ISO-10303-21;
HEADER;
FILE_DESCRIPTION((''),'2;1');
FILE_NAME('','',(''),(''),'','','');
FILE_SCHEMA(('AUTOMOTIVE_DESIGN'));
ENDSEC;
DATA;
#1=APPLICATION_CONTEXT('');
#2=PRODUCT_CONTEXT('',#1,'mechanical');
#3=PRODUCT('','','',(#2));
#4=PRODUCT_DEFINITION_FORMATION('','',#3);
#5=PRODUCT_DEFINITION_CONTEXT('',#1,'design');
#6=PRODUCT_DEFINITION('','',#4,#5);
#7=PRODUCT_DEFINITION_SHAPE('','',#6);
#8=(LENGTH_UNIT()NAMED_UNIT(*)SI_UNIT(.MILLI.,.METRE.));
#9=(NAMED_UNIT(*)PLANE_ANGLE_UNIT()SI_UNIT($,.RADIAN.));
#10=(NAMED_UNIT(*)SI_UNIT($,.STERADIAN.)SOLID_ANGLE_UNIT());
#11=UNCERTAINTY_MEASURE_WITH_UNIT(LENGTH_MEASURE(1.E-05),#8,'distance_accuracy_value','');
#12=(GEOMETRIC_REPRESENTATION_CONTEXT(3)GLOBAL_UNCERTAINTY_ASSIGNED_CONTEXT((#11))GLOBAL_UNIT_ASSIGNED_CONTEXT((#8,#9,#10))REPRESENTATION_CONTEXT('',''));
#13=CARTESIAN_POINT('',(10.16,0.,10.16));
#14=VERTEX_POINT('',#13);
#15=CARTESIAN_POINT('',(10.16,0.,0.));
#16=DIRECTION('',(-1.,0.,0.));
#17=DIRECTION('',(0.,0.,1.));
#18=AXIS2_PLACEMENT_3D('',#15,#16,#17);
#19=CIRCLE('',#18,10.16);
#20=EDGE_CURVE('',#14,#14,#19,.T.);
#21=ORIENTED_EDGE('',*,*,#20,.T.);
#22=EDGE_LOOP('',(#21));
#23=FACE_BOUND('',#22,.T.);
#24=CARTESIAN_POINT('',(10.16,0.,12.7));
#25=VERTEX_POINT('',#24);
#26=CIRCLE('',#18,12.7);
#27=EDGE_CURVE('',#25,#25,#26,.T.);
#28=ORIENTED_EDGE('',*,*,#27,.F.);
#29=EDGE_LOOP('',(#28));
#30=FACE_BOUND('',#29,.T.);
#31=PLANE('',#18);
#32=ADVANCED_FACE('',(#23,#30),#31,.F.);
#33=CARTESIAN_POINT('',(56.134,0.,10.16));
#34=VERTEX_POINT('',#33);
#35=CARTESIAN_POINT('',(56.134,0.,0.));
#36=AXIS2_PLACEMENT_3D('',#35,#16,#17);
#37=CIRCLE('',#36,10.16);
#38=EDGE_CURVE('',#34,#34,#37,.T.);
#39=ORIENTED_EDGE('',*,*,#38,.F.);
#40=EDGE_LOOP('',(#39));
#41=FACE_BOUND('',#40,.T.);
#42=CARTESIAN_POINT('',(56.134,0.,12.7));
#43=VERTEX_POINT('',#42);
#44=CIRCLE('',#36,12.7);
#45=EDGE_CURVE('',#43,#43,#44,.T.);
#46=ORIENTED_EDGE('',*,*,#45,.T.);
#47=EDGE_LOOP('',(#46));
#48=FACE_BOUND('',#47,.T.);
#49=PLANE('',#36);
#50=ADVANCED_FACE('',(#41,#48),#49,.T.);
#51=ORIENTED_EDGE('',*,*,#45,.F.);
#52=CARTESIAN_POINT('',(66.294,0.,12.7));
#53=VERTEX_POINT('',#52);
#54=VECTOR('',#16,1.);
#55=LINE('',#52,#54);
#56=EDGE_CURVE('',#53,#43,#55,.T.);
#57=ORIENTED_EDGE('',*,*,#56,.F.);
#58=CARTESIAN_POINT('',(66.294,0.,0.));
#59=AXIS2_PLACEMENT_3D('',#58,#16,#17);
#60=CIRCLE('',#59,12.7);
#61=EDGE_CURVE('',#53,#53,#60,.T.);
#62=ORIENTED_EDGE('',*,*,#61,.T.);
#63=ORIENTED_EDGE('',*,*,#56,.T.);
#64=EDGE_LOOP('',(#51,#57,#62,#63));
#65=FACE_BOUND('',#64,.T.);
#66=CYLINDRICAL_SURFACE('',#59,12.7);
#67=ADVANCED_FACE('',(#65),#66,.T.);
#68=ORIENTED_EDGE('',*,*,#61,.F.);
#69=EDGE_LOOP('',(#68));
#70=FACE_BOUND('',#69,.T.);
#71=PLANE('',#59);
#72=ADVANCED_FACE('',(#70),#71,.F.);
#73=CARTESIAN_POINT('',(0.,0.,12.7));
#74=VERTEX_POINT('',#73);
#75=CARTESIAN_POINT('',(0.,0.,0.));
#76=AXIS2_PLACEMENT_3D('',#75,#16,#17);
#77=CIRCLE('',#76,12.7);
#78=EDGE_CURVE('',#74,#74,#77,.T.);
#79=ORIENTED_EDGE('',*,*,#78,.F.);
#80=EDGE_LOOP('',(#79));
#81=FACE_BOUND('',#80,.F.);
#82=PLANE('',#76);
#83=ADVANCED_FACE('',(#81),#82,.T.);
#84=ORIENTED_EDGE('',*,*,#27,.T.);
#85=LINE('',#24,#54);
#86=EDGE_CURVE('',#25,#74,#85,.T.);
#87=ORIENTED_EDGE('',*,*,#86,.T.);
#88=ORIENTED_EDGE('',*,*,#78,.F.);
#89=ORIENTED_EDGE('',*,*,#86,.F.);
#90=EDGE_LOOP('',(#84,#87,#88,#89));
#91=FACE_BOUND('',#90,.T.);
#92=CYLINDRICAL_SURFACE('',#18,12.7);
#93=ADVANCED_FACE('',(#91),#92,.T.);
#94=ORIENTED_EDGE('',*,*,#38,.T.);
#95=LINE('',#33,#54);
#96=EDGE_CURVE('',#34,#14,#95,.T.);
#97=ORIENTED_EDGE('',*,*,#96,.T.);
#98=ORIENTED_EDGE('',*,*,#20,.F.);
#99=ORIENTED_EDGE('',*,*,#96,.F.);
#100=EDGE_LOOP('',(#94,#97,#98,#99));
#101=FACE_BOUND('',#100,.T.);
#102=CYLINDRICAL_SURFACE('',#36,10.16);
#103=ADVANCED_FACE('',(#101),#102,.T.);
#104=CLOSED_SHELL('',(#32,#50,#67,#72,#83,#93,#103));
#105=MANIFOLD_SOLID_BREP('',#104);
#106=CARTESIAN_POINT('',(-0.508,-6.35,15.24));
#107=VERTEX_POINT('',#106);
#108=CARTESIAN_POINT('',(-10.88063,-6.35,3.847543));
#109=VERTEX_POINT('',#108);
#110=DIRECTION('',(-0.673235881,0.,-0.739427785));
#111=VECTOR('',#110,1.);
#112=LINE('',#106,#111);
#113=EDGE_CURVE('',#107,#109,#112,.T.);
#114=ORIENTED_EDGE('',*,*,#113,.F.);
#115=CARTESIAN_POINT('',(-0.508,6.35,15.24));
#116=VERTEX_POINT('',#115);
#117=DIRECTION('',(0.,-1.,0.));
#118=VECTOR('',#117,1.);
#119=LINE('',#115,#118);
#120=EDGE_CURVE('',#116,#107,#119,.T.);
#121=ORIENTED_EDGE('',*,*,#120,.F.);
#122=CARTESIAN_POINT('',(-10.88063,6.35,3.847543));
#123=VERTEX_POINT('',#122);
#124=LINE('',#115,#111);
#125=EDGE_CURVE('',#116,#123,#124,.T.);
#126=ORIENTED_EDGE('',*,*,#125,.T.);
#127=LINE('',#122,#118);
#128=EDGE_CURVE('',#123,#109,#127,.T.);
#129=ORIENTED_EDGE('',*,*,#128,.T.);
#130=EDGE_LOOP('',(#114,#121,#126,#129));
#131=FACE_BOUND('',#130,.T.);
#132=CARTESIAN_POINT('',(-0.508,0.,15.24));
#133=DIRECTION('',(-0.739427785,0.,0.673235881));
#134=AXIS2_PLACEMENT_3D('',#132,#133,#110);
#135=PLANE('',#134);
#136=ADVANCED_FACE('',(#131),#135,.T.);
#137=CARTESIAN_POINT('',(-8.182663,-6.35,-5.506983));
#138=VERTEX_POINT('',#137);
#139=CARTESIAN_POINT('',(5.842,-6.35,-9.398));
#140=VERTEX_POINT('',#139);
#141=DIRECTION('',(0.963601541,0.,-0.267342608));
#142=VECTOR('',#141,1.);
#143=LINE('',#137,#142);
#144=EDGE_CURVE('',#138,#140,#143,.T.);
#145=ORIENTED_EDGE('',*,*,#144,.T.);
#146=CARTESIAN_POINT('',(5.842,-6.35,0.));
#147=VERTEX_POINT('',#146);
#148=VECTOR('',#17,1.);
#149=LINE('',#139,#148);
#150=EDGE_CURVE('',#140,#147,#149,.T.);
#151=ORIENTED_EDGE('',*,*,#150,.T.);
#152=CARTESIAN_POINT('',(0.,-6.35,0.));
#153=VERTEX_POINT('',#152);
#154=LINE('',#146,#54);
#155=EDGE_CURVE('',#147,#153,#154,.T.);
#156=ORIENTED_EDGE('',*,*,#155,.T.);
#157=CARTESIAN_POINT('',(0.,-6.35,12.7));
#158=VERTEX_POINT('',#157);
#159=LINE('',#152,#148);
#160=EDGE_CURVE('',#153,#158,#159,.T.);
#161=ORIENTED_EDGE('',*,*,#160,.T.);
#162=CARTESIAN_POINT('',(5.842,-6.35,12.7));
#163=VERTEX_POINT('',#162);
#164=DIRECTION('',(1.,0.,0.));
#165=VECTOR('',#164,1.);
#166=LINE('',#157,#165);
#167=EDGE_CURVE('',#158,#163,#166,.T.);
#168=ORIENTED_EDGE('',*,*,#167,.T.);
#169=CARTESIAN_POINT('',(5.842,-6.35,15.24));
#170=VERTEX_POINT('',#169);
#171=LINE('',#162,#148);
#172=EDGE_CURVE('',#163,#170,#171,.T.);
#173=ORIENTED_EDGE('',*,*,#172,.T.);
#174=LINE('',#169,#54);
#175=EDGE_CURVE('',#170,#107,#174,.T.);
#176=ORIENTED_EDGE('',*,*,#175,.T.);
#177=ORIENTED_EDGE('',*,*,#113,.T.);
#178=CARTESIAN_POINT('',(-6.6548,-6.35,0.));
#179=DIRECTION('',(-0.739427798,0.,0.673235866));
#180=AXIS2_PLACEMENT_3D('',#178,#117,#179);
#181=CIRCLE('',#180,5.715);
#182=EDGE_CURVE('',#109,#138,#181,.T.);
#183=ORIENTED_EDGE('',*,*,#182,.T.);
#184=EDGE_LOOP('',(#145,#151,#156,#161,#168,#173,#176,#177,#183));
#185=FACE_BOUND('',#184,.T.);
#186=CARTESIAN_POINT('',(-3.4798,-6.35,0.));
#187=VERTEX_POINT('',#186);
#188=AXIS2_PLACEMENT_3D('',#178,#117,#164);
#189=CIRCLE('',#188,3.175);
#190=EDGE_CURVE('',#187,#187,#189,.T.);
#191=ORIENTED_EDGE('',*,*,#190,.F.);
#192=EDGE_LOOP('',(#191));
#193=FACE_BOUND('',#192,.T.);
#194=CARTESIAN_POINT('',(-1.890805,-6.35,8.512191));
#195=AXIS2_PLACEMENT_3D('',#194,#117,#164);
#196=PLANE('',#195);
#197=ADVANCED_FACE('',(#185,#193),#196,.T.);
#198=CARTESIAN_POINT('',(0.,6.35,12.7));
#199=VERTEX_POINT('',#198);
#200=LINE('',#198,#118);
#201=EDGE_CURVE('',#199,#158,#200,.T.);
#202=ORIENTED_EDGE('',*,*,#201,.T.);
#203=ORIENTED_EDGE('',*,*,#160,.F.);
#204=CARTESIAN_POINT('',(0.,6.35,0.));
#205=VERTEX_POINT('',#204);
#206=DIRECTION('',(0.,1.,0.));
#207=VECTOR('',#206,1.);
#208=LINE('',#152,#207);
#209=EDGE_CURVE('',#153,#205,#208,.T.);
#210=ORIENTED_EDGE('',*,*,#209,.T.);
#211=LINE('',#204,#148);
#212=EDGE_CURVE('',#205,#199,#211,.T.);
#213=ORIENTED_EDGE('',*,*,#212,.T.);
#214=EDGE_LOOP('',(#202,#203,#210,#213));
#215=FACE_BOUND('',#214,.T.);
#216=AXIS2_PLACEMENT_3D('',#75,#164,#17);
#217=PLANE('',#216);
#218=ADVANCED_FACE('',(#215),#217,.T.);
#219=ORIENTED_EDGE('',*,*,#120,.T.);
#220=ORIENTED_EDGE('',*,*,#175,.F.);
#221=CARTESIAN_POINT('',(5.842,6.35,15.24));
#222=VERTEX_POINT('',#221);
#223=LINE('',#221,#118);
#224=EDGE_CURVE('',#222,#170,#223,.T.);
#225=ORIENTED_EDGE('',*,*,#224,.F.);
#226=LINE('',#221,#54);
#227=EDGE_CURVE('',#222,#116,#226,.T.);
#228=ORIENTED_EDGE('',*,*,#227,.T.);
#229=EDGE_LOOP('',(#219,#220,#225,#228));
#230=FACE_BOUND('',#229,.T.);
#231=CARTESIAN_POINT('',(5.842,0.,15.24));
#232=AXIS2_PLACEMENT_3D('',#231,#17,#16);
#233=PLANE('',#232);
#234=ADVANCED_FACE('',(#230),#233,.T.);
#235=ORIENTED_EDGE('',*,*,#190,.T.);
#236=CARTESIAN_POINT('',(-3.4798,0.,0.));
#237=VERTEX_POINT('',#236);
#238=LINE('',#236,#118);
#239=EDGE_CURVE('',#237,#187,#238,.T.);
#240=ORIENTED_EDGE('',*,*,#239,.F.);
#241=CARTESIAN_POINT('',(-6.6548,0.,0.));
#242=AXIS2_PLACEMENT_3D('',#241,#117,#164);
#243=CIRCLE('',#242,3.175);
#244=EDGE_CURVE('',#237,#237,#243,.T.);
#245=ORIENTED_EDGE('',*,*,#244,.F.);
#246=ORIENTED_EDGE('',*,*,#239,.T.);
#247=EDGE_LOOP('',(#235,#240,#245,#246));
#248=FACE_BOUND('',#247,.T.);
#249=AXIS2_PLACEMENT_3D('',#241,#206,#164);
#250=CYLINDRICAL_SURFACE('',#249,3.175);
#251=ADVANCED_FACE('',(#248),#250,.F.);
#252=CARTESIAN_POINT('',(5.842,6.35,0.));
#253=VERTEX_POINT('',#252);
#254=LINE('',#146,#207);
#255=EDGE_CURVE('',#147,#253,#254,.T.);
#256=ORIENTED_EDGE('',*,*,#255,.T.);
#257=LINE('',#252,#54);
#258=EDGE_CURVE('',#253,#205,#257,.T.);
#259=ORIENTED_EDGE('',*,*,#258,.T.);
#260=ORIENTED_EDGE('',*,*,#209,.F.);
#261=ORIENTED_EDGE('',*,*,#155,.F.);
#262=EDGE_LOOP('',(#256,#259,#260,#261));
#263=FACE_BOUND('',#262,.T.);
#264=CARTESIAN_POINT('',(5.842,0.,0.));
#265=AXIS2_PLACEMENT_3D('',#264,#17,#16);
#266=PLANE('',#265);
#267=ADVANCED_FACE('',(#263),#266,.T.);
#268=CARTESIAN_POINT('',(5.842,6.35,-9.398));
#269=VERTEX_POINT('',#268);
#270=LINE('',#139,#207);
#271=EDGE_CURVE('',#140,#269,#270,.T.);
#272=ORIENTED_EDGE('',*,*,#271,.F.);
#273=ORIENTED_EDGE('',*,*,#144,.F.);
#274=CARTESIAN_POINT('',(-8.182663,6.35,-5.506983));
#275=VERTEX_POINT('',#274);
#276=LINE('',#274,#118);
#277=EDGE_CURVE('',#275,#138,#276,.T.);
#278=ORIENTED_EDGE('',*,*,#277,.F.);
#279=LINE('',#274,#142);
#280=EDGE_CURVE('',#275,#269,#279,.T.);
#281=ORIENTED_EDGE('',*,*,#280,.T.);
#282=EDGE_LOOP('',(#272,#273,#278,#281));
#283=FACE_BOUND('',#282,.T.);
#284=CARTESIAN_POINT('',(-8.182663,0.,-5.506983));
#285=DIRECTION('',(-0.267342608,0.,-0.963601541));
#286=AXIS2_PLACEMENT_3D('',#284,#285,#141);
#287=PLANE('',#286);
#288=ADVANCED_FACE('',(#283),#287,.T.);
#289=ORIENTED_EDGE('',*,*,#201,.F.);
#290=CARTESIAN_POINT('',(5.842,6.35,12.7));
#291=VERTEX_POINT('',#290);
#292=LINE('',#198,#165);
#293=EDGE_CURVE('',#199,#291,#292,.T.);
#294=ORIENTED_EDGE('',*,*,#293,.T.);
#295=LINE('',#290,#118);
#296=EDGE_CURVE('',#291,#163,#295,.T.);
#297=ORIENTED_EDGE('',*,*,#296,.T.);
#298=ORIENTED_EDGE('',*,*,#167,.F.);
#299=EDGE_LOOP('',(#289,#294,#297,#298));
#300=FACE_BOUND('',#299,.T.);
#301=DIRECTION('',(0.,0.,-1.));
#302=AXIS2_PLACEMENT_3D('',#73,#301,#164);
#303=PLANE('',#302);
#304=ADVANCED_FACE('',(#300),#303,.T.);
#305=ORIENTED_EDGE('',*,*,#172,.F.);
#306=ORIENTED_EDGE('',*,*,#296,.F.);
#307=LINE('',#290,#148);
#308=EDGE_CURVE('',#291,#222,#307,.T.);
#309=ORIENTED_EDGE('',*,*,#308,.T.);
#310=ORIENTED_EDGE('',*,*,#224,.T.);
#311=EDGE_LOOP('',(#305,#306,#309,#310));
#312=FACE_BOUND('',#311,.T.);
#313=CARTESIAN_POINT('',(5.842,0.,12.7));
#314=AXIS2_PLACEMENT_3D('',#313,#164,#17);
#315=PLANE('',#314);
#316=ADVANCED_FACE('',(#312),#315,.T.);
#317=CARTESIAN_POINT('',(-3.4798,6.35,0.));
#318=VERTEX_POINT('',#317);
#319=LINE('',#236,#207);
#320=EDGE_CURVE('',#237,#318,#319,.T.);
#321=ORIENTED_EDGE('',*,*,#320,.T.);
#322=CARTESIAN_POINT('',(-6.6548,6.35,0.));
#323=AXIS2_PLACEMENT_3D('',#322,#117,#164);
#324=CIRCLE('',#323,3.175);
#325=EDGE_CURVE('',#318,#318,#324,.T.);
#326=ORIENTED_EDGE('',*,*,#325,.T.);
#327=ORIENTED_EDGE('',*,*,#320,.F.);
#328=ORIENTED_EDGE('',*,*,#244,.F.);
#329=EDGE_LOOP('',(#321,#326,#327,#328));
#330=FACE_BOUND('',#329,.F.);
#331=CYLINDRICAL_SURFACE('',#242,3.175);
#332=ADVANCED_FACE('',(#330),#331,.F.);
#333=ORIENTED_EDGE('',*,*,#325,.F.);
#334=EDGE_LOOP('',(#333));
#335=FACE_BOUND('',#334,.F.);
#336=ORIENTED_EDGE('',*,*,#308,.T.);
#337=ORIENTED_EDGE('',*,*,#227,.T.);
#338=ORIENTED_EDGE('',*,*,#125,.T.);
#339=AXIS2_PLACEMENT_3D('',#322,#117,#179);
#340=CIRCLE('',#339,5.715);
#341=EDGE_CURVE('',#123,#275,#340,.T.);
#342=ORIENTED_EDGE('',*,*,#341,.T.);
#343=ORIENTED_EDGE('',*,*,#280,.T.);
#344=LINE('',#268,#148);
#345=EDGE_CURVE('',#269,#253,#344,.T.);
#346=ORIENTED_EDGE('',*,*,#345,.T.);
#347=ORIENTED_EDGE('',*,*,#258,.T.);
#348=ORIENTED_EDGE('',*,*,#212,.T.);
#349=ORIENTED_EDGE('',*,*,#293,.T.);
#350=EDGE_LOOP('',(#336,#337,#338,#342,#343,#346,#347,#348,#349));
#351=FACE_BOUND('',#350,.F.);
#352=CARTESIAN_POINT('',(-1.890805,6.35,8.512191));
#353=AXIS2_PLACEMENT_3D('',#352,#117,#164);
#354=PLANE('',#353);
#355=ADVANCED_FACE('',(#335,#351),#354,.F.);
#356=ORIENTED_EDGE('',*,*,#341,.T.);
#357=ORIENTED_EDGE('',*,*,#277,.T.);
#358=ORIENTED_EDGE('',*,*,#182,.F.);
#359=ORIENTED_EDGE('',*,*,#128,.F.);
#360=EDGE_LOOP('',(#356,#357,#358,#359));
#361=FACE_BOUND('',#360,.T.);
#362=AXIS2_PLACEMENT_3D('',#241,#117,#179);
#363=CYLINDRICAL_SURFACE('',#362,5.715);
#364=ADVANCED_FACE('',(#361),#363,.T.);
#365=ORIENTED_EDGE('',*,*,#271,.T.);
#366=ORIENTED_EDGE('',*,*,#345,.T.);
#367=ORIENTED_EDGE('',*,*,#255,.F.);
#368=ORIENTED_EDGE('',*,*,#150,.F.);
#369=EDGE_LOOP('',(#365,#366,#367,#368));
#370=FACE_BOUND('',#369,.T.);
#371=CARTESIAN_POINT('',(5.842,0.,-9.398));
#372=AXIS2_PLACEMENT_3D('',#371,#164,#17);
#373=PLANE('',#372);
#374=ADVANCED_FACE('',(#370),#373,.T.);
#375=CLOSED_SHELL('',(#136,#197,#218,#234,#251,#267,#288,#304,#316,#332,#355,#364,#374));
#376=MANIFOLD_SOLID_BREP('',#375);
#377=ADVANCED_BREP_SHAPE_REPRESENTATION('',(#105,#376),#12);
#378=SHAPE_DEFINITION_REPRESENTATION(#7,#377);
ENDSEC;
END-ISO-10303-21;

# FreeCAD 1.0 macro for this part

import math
import FreeCAD as App
import Part
import Sketcher

V = App.Vector
Q = App.Units.Quantity


def add_polygon(sketch, points):
    """Adds a closed chain of lines whose ends are joined by coincident constraints."""
    first, n = sketch.GeometryCount, len(points)
    for a, b in zip(points, points[1:] + points[:1]):
        sketch.addGeometry(Part.LineSegment(App.Vector(*a, 0), App.Vector(*b, 0)), False)
    for i in range(n):
        sketch.addConstraint(Sketcher.Constraint("Coincident", first + i, 2, first + (i + 1) % n, 1))

doc = App.newDocument("Part")
body = doc.addObject("PartDesign::Body", "Body")

# Sketch on XZ plane
sketch1 = body.newObject("Sketcher::SketchObject", "Sketch")
sketch1.AttachmentSupport = (doc.getObject("XZ_Plane"), [""])
sketch1.MapMode = "FlatFace"
add_polygon(sketch1, [(66.294, 0), (66.294, 12.7), (56.134, 12.7), (56.134, 10.16), (10.16, 10.16), (10.16, 12.7), (0, 12.7), (0, 0)])  # lines 0-7
sketch1.addConstraint([
    Sketcher.Constraint("Vertical", 0),
    Sketcher.Constraint("Horizontal", 1),
    Sketcher.Constraint("Vertical", 2),
    Sketcher.Constraint("Horizontal", 3),
    Sketcher.Constraint("Vertical", 4),
    Sketcher.Constraint("Horizontal", 5),
    Sketcher.Constraint("Vertical", 6),
    Sketcher.Constraint("Horizontal", 7),
    Sketcher.Constraint("Coincident", 6, 2, -1, 1),
    Sketcher.Constraint("Horizontal", 1, 2, 4, 2),
    Sketcher.Constraint("Equal", 1, 5),
    Sketcher.Constraint("DistanceX", 1, 2, 1, 1, Q("0.4 in")),
    Sketcher.Constraint("DistanceY", 0, 1, 0, 2, Q("0.5 in")),
    Sketcher.Constraint("DistanceY", 2, 2, 2, 1, Q("0.1 in")),
    Sketcher.Constraint("DistanceX", 3, 2, 3, 1, Q("1.81 in")),
])
revolution = body.newObject("PartDesign::Revolution", "Revolution")
revolution.Profile = sketch1
revolution.ReferenceAxis = (sketch1, ["H_Axis"])
revolution.Angle = 360
body2 = doc.addObject("PartDesign::Body", "Body001")

# Sketch on XZ plane
sketch2 = body2.newObject("Sketcher::SketchObject", "Sketch001")
sketch2.AttachmentSupport = (doc.getObject("XZ_Plane001"), [""])
sketch2.MapMode = "FlatFace"
sketch2.addGeometry([
    Part.LineSegment(V(0, 0, 0), V(0, 12.7, 0)),  # 0
    Part.LineSegment(V(0, 12.7, 0), V(5.842, 12.7, 0)),  # 1
    Part.LineSegment(V(5.842, 12.7, 0), V(5.842, 15.24, 0)),  # 2
    Part.LineSegment(V(5.842, 15.24, 0), V(-0.508, 15.24, 0)),  # 3
    Part.LineSegment(V(-0.508, 15.24, 0), V(-10.88063, 3.847543, 0)),  # 4
    Part.ArcOfCircle(Part.Circle(V(-6.6548, 0, 0), V(0, 0, 1), 5.715), math.radians(137.682696), math.radians(254.493803)),  # 5
    Part.LineSegment(V(-8.182663, -5.506983, 0), V(5.842, -9.398, 0)),  # 6
    Part.LineSegment(V(5.842, -9.398, 0), V(5.842, 0, 0)),  # 7
    Part.LineSegment(V(5.842, 0, 0), V(0, 0, 0)),  # 8
    Part.Circle(V(-6.6548, 0, 0), V(0, 0, 1), 3.175),  # 9
], False)
sketch2.addConstraint([
    Sketcher.Constraint("Coincident", 0, 2, 1, 1),
    Sketcher.Constraint("Coincident", 1, 2, 2, 1),
    Sketcher.Constraint("Coincident", 2, 2, 3, 1),
    Sketcher.Constraint("Coincident", 3, 2, 4, 1),
    Sketcher.Constraint("Tangent", 4, 2, 5, 1),
    Sketcher.Constraint("Tangent", 5, 2, 6, 1),
    Sketcher.Constraint("Coincident", 6, 2, 7, 1),
    Sketcher.Constraint("Coincident", 7, 2, 8, 1),
    Sketcher.Constraint("Coincident", 8, 2, 0, 1),
    Sketcher.Constraint("Vertical", 0),
    Sketcher.Constraint("Horizontal", 1),
    Sketcher.Constraint("Vertical", 2),
    Sketcher.Constraint("Horizontal", 3),
    Sketcher.Constraint("Vertical", 7),
    Sketcher.Constraint("Horizontal", 8),
    Sketcher.Constraint("Coincident", 8, 2, -1, 1),
    Sketcher.Constraint("Coincident", 9, 3, 5, 3),
    Sketcher.Constraint("PointOnObject", 5, 3, -1),
    Sketcher.Constraint("Vertical", 2, 2, 6, 2),
    Sketcher.Constraint("Diameter", 9, Q("0.25 in")),
    Sketcher.Constraint("DistanceY", 0, 1, 0, 2, Q("0.5 in")),
    Sketcher.Constraint("DistanceY", 2, 1, 2, 2, Q("0.1 in")),
    Sketcher.Constraint("Radius", 5, Q("0.225 in")),
    Sketcher.Constraint("DistanceX", 1, 1, 1, 2, Q("0.23 in")),
    Sketcher.Constraint("DistanceX", 3, 2, 3, 1, Q("0.25 in")),
    Sketcher.Constraint("DistanceY", 7, 1, 7, 2, Q("0.37 in")),
    Sketcher.Constraint("DistanceX", 5, 3, -1, 1, Q("0.262 in")),
])
pad1 = body2.newObject("PartDesign::Pad", "Pad")
pad1.Profile = sketch2
pad1.Type = "TwoLengths"
pad1.Length = Q("0.25 in")
pad1.Length2 = Q("0.25 in")

doc.recompute()
